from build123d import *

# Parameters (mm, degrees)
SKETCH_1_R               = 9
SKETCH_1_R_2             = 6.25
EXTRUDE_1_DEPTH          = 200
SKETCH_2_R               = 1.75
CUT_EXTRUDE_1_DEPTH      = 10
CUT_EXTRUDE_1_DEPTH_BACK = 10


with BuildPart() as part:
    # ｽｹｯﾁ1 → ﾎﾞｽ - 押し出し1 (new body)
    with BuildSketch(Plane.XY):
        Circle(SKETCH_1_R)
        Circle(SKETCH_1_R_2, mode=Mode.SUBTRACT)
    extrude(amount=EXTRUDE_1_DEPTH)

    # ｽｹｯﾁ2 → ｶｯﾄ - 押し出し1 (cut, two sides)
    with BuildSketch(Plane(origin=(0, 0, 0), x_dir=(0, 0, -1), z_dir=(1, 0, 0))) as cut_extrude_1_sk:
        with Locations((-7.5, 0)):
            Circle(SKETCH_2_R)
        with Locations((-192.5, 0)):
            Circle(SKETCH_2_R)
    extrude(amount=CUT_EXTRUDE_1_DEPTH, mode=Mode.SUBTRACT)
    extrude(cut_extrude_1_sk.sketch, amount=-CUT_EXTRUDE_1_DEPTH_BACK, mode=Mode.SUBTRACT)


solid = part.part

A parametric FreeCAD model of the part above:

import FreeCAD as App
import Part
import Sketcher

doc = App.newDocument("Part")
body = doc.addObject("PartDesign::Body", "Body")

# Sketch on XY plane
sketch1 = body.newObject("Sketcher::SketchObject", "Sketch")
sketch1.AttachmentSupport = (doc.getObject("XY_Plane"), [""])
sketch1.MapMode = "FlatFace"
sketch1.addGeometry([
    Part.Circle(App.Vector(0, 0, 0), App.Vector(0, 0, 1), 9),
    Part.Circle(App.Vector(0, 0, 0), App.Vector(0, 0, 1), 6),
], False)
sketch1.addConstraint([
    Sketcher.Constraint("Coincident", 0, 3, -1, 1),
    Sketcher.Constraint("Coincident", 1, 3, -1, 1),
    Sketcher.Constraint("Diameter", 0, 18.0),
    Sketcher.Constraint("Diameter", 1, 12.5),
])
pad1 = body.newObject("PartDesign::Pad", "Pad")
pad1.Profile = sketch1
pad1.Length = 200

# Sketch on YZ plane
sketch2 = body.newObject("Sketcher::SketchObject", "Sketch001")
sketch2.AttachmentSupport = (doc.getObject("YZ_Plane"), [""])
sketch2.MapMode = "FlatFace"
sketch2.addGeometry([
    Part.Circle(App.Vector(0, 7.5, 0), App.Vector(0, 0, 1), 1.8),
    Part.Circle(App.Vector(0, 192.5, 0), App.Vector(0, 0, 1), 1.8),
], False)
sketch2.addConstraint([
    Sketcher.Constraint("Equal", 0, 1),
    Sketcher.Constraint("PointOnObject", 0, 3, -2),
    Sketcher.Constraint("PointOnObject", 1, 3, -2),
    Sketcher.Constraint("Diameter", 0, 3.5),
    Sketcher.Constraint("DistanceY", 0, 3, 1, 3, 185.0),
    Sketcher.Constraint("DistanceY", -1, 1, 0, 3, 7.5),
])
pocket1 = body.newObject("PartDesign::Pocket", "Pocket")
pocket1.Profile = sketch2
pocket1.Type = "ThroughAll"
pocket1.Midplane = True

doc.recompute()
